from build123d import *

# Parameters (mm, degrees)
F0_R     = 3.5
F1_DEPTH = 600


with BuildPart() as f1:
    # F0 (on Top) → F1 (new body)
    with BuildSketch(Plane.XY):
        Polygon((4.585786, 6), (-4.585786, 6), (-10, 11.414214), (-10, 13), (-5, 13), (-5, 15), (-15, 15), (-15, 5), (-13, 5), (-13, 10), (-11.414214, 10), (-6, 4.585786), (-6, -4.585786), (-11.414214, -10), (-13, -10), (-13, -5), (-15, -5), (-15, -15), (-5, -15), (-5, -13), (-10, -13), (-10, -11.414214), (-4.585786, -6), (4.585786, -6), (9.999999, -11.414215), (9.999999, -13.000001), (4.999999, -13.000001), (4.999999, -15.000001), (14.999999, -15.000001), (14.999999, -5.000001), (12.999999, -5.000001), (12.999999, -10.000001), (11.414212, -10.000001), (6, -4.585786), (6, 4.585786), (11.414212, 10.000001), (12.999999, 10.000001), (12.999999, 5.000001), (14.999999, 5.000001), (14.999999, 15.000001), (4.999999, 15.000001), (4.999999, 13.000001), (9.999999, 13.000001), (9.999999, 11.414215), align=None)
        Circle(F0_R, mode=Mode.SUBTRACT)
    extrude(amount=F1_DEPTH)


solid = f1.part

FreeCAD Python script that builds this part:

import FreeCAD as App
import Part
import Sketcher

doc = App.newDocument("Part")
body = doc.addObject("PartDesign::Body", "Body")

# Sketch on XY plane
sketch1 = doc.addObject("Sketcher::SketchObject", "Sketch")
body.addObject(sketch1)
sketch1.AttachmentSupport = (doc.XY_Plane, [""])
sketch1.MapMode = "FlatFace"
sketch1.addGeometry([
    Part.LineSegment(App.Vector(4.6, 6, 0), App.Vector(-4.6, 6, 0)),  # 0
    Part.LineSegment(App.Vector(-4.6, 6, 0), App.Vector(-10, 11.4, 0)),  # 1
    Part.LineSegment(App.Vector(-10, 11.4, 0), App.Vector(-10, 13, 0)),  # 2
    Part.LineSegment(App.Vector(-10, 13, 0), App.Vector(-5, 13, 0)),  # 3
    Part.LineSegment(App.Vector(-5, 13, 0), App.Vector(-5, 15, 0)),  # 4
    Part.LineSegment(App.Vector(-5, 15, 0), App.Vector(-15, 15, 0)),  # 5
    Part.LineSegment(App.Vector(-15, 15, 0), App.Vector(-15, 5, 0)),  # 6
    Part.LineSegment(App.Vector(-15, 5, 0), App.Vector(-13, 5, 0)),  # 7
    Part.LineSegment(App.Vector(-13, 5, 0), App.Vector(-13, 10, 0)),  # 8
    Part.LineSegment(App.Vector(-13, 10, 0), App.Vector(-11.4, 10, 0)),  # 9
    Part.LineSegment(App.Vector(-11.4, 10, 0), App.Vector(-6, 4.6, 0)),  # 10
    Part.LineSegment(App.Vector(-6, 4.6, 0), App.Vector(-6, -4.6, 0)),  # 11
    Part.LineSegment(App.Vector(-6, -4.6, 0), App.Vector(-11.4, -10, 0)),  # 12
    Part.LineSegment(App.Vector(-11.4, -10, 0), App.Vector(-13, -10, 0)),  # 13
    Part.LineSegment(App.Vector(-13, -10, 0), App.Vector(-13, -5, 0)),  # 14
    Part.LineSegment(App.Vector(-13, -5, 0), App.Vector(-15, -5, 0)),  # 15
    Part.LineSegment(App.Vector(-15, -5, 0), App.Vector(-15, -15, 0)),  # 16
    Part.LineSegment(App.Vector(-15, -15, 0), App.Vector(-5, -15, 0)),  # 17
    Part.LineSegment(App.Vector(-5, -15, 0), App.Vector(-5, -13, 0)),  # 18
    Part.LineSegment(App.Vector(-5, -13, 0), App.Vector(-10, -13, 0)),  # 19
    Part.LineSegment(App.Vector(-10, -13, 0), App.Vector(-10, -11.4, 0)),  # 20
    Part.LineSegment(App.Vector(-10, -11.4, 0), App.Vector(-4.6, -6, 0)),  # 21
    Part.LineSegment(App.Vector(-4.6, -6, 0), App.Vector(4.6, -6, 0)),  # 22
    Part.LineSegment(App.Vector(4.6, -6, 0), App.Vector(10, -11.4, 0)),  # 23
    Part.LineSegment(App.Vector(10, -11.4, 0), App.Vector(10, -13, 0)),  # 24
    Part.LineSegment(App.Vector(10, -13, 0), App.Vector(5, -13, 0)),  # 25
    Part.LineSegment(App.Vector(5, -13, 0), App.Vector(5, -15, 0)),  # 26
    Part.LineSegment(App.Vector(5, -15, 0), App.Vector(15, -15, 0)),  # 27
    Part.LineSegment(App.Vector(15, -15, 0), App.Vector(15, -5, 0)),  # 28
    Part.LineSegment(App.Vector(15, -5, 0), App.Vector(13, -5, 0)),  # 29
    Part.LineSegment(App.Vector(13, -5, 0), App.Vector(13, -10, 0)),  # 30
    Part.LineSegment(App.Vector(13, -10, 0), App.Vector(11.4, -10, 0)),  # 31
    Part.LineSegment(App.Vector(11.4, -10, 0), App.Vector(6, -4.6, 0)),  # 32
    Part.LineSegment(App.Vector(6, -4.6, 0), App.Vector(6, 4.6, 0)),  # 33
    Part.LineSegment(App.Vector(6, 4.6, 0), App.Vector(11.4, 10, 0)),  # 34
    Part.LineSegment(App.Vector(11.4, 10, 0), App.Vector(13, 10, 0)),  # 35
    Part.LineSegment(App.Vector(13, 10, 0), App.Vector(13, 5, 0)),  # 36
    Part.LineSegment(App.Vector(13, 5, 0), App.Vector(15, 5, 0)),  # 37
    Part.LineSegment(App.Vector(15, 5, 0), App.Vector(15, 15, 0)),  # 38
    Part.LineSegment(App.Vector(15, 15, 0), App.Vector(5, 15, 0)),  # 39
    Part.LineSegment(App.Vector(5, 15, 0), App.Vector(5, 13, 0)),  # 40
    Part.LineSegment(App.Vector(5, 13, 0), App.Vector(10, 13, 0)),  # 41
    Part.LineSegment(App.Vector(10, 13, 0), App.Vector(10, 11.4, 0)),  # 42
    Part.LineSegment(App.Vector(10, 11.4, 0), App.Vector(4.6, 6, 0)),  # 43
    Part.Circle(App.Vector(0, 0, 0), App.Vector(0, 0, 1), 3.5),  # 44
], False)
sketch1.addConstraint([
    Sketcher.Constraint("Coincident", 0, 2, 1, 1),
    Sketcher.Constraint("Coincident", 1, 2, 2, 1),
    Sketcher.Constraint("Coincident", 2, 2, 3, 1),
    Sketcher.Constraint("Coincident", 3, 2, 4, 1),
    Sketcher.Constraint("Coincident", 4, 2, 5, 1),
    Sketcher.Constraint("Coincident", 5, 2, 6, 1),
    Sketcher.Constraint("Coincident", 6, 2, 7, 1),
    Sketcher.Constraint("Coincident", 7, 2, 8, 1),
    Sketcher.Constraint("Coincident", 8, 2, 9, 1),
    Sketcher.Constraint("Coincident", 9, 2, 10, 1),
    Sketcher.Constraint("Coincident", 10, 2, 11, 1),
    Sketcher.Constraint("Coincident", 11, 2, 12, 1),
    Sketcher.Constraint("Coincident", 12, 2, 13, 1),
    Sketcher.Constraint("Coincident", 13, 2, 14, 1),
    Sketcher.Constraint("Coincident", 14, 2, 15, 1),
    Sketcher.Constraint("Coincident", 15, 2, 16, 1),
    Sketcher.Constraint("Coincident", 16, 2, 17, 1),
    Sketcher.Constraint("Coincident", 17, 2, 18, 1),
    Sketcher.Constraint("Coincident", 18, 2, 19, 1),
    Sketcher.Constraint("Coincident", 19, 2, 20, 1),
    Sketcher.Constraint("Coincident", 20, 2, 21, 1),
    Sketcher.Constraint("Coincident", 21, 2, 22, 1),
    Sketcher.Constraint("Coincident", 22, 2, 23, 1),
    Sketcher.Constraint("Coincident", 23, 2, 24, 1),
    Sketcher.Constraint("Coincident", 24, 2, 25, 1),
    Sketcher.Constraint("Coincident", 25, 2, 26, 1),
    Sketcher.Constraint("Coincident", 26, 2, 27, 1),
    Sketcher.Constraint("Coincident", 27, 2, 28, 1),
    Sketcher.Constraint("Coincident", 28, 2, 29, 1),
    Sketcher.Constraint("Coincident", 29, 2, 30, 1),
    Sketcher.Constraint("Coincident", 30, 2, 31, 1),
    Sketcher.Constraint("Coincident", 31, 2, 32, 1),
    Sketcher.Constraint("Coincident", 32, 2, 33, 1),
    Sketcher.Constraint("Coincident", 33, 2, 34, 1),
    Sketcher.Constraint("Coincident", 34, 2, 35, 1),
    Sketcher.Constraint("Coincident", 35, 2, 36, 1),
    Sketcher.Constraint("Coincident", 36, 2, 37, 1),
    Sketcher.Constraint("Coincident", 37, 2, 38, 1),
    Sketcher.Constraint("Coincident", 38, 2, 39, 1),
    Sketcher.Constraint("Coincident", 39, 2, 40, 1),
    Sketcher.Constraint("Coincident", 40, 2, 41, 1),
    Sketcher.Constraint("Coincident", 41, 2, 42, 1),
    Sketcher.Constraint("Coincident", 42, 2, 43, 1),
    Sketcher.Constraint("Coincident", 43, 2, 0, 1),
    Sketcher.Constraint("Horizontal", 0),
    Sketcher.Constraint("Vertical", 2),
    Sketcher.Constraint("Horizontal", 3),
    Sketcher.Constraint("Vertical", 4),
    Sketcher.Constraint("Horizontal", 5),
    Sketcher.Constraint("Vertical", 6),
    Sketcher.Constraint("Horizontal", 7),
    Sketcher.Constraint("Vertical", 8),
    Sketcher.Constraint("Horizontal", 9),
    Sketcher.Constraint("Vertical", 11),
    Sketcher.Constraint("Horizontal", 13),
    Sketcher.Constraint("Vertical", 14),
    Sketcher.Constraint("Horizontal", 15),
    Sketcher.Constraint("Vertical", 16),
    Sketcher.Constraint("Horizontal", 17),
    Sketcher.Constraint("Vertical", 18),
    Sketcher.Constraint("Horizontal", 19),
    Sketcher.Constraint("Vertical", 20),
    Sketcher.Constraint("Horizontal", 22),
    Sketcher.Constraint("Vertical", 24),
    Sketcher.Constraint("Horizontal", 25),
    Sketcher.Constraint("Vertical", 26),
    Sketcher.Constraint("Horizontal", 27),
    Sketcher.Constraint("Vertical", 28),
    Sketcher.Constraint("Horizontal", 29),
    Sketcher.Constraint("Vertical", 30),
    Sketcher.Constraint("Horizontal", 31),
    Sketcher.Constraint("Vertical", 33),
    Sketcher.Constraint("Horizontal", 35),
    Sketcher.Constraint("Vertical", 36),
    Sketcher.Constraint("Horizontal", 37),
    Sketcher.Constraint("Vertical", 38),
    Sketcher.Constraint("Horizontal", 39),
    Sketcher.Constraint("Vertical", 40),
    Sketcher.Constraint("Horizontal", 41),
    Sketcher.Constraint("Vertical", 42),
    Sketcher.Constraint("Coincident", 44, 3, -1, 1),
    Sketcher.Constraint("Symmetric", 0, 2, 22, 2, -1, 1),
    Sketcher.Constraint("Symmetric", 1, 2, 23, 2, -1, 1),
    Sketcher.Constraint("Symmetric", 3, 2, 25, 2, -1, 1),
    Sketcher.Constraint("Symmetric", 5, 2, 27, 2, -1, 1),
    Sketcher.Constraint("Symmetric", 7, 2, 29, 2, -1, 1),
    Sketcher.Constraint("Symmetric", 9, 2, 31, 2, -1, 1),
    Sketcher.Constraint("Symmetric", 10, 2, 32, 2, -1, 1),
    Sketcher.Constraint("Symmetric", 12, 2, 34, 2, -1, 1),
    Sketcher.Constraint("Symmetric", 14, 2, 36, 2, -1, 1),
    Sketcher.Constraint("Symmetric", 16, 2, 38, 2, -1, 1),
    Sketcher.Constraint("Symmetric", 18, 2, 40, 2, -1, 1),
    Sketcher.Constraint("Symmetric", 20, 2, 42, 2, -1, 1),
    Sketcher.Constraint("Symmetric", 20, 2, 23, 2, -2),
    Sketcher.Constraint("Symmetric", 18, 2, 25, 2, -2),
    Sketcher.Constraint("Symmetric", 16, 2, 27, 2, -2),
    Sketcher.Constraint("Symmetric", 14, 2, 29, 2, -2),
    Sketcher.Constraint("Symmetric", 12, 2, 31, 2, -2),
    Sketcher.Constraint("Parallel", 1, 10),
    Sketcher.Constraint("Perpendicular", 10, 12),
    Sketcher.Constraint("Parallel", 12, 21),
    Sketcher.Constraint("Perpendicular", 32, 34),
    Sketcher.Constraint("Parallel", 34, 43),
    Sketcher.Constraint("Horizontal", 11, 2, 32, 2),
    Sketcher.Constraint("Equal", 35, 2),
    Sketcher.Constraint("Equal", 37, 4),
    Sketcher.Constraint("Equal", 39, 6),
    Sketcher.Constraint("Equal", 41, 8),
    Sketcher.Constraint("Equal", 22, 11),
    Sketcher.Constraint("Equal", 1, 10),
    Sketcher.Constraint("Diameter", 44, 7.0),
    Sketcher.Constraint("DistanceX", 3, 1, 3, 2, 5.0),
    Sketcher.Constraint("DistanceX", 5, 2, 5, 1, 10.0),
    Sketcher.Constraint("DistanceX", 7, 1, 7, 2, 2.0),
    Sketcher.Constraint("DistanceY", -1, 1, 0, 2, 6.0),
    Sketcher.Constraint("DistanceX", 1, 2, -1, 1, 10.0),
    Sketcher.Constraint("DistanceX", 0, 2, 0, 1, 9.171572),
])
pad1 = doc.addObject("PartDesign::Pad", "Pad")
body.addObject(pad1)
pad1.Profile = sketch1
pad1.Length = 600

doc.recompute()
